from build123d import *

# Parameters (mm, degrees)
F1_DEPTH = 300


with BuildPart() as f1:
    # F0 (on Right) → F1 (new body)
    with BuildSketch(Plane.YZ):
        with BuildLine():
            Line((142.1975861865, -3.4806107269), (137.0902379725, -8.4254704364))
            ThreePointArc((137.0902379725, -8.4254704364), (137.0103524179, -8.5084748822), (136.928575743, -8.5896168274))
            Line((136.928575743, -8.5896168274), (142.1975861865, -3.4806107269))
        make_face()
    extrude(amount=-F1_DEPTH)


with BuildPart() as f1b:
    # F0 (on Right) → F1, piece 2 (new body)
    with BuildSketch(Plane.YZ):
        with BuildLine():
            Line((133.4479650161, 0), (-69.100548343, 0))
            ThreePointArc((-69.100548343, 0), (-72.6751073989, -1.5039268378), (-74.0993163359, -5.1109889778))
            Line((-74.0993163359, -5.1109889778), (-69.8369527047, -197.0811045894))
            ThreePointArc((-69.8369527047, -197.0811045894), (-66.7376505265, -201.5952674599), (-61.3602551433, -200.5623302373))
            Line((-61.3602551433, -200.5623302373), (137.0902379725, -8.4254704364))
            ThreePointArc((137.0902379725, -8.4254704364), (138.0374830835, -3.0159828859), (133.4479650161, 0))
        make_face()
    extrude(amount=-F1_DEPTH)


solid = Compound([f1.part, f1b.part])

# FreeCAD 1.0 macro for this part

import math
import FreeCAD as App
import Part
import Sketcher

V = App.Vector

doc = App.newDocument("Part")
params = doc.addObject("Spreadsheet::Sheet", "Params")
for row, (alias, value) in enumerate([
    ("sketch1_radius", "5 mm"),
    ("pad1_length", "300 mm"),
    ("sketch2_radius", "5 mm"),
    ("pad2_length", "300 mm"),
], start=1):
    params.set(f"A{row}", alias)
    params.set(f"B{row}", "=" + value)
    params.setAlias(f"B{row}", alias)

body = doc.addObject("PartDesign::Body", "Body")

# Sketch on YZ plane
sketch1 = doc.addObject("Sketcher::SketchObject", "Sketch")
body.addObject(sketch1)
sketch1.AttachmentSupport = (doc.YZ_Plane, [""])
sketch1.MapMode = "FlatFace"
sketch1.addGeometry(Part.LineSegment(V(142.2, -3.48, 0), V(137.09, -8.43, 0)), False)
sketch1.addGeometry(Part.ArcOfCircle(Part.Circle(V(133.45, -5, 0), V(0, 0, 1), 5), math.radians(-45.88), math.radians(-43.24)), False)
sketch1.addGeometry(Part.LineSegment(V(136.93, -8.59, 0), V(142.2, -3.48, 0)), False)
sketch1.addConstraint(Sketcher.Constraint("Coincident", 0, 2, 1, 2))
sketch1.addConstraint(Sketcher.Constraint("Tangent", 1, 1, 2, 1))
sketch1.addConstraint(Sketcher.Constraint("Coincident", 2, 2, 0, 1))
sketch1.addConstraint(Sketcher.Constraint("Radius", 1, 5.0))
sketch1.addConstraint(Sketcher.Constraint("DistanceY", 1, 3, -1, 1, 5.0))
sketch1.addConstraint(Sketcher.Constraint("DistanceY", 0, 2, -1, 1, 8.42547))
sketch1.addConstraint(Sketcher.Constraint("DistanceY", 2, 2, -1, 1, 3.480611))
sketch1.addConstraint(Sketcher.Constraint("DistanceX", 1, 3, 1, 1, 3.480611))
sketch1.addConstraint(Sketcher.Constraint("DistanceX", -1, 1, 1, 3, 133.447965))
sketch1.setExpression("Constraints[3]", "Params.sketch1_radius")
pad1 = doc.addObject("PartDesign::Pad", "Pad")
body.addObject(pad1)
pad1.Profile = sketch1
pad1.setExpression("Length", "Params.pad1_length")
pad1.Reversed = True
body2 = doc.addObject("PartDesign::Body", "Body001")

# Sketch on YZ plane
sketch2 = doc.addObject("Sketcher::SketchObject", "Sketch001")
body2.addObject(sketch2)
sketch2.AttachmentSupport = (doc.getObject("YZ_Plane001"), [""])
sketch2.MapMode = "FlatFace"
sketch2.addGeometry(Part.LineSegment(V(133, 0, 0), V(-69, 0, 0)), False)
sketch2.addGeometry(Part.ArcOfCircle(Part.Circle(V(-69, -5, 0), V(0, 0, 1), 5), math.radians(90), math.radians(181)), False)
sketch2.addGeometry(Part.LineSegment(V(-74, -5, 0), V(-70, -197, 0)), False)
sketch2.addGeometry(Part.ArcOfCircle(Part.Circle(V(-65, -197, 0), V(0, 0, 1), 5), math.radians(-179), math.radians(-46)), False)
sketch2.addGeometry(Part.LineSegment(V(-61, -201, 0), V(137, -8, 0)), False)
sketch2.addGeometry(Part.ArcOfCircle(Part.Circle(V(133, -5, 0), V(0, 0, 1), 5), math.radians(-43), math.radians(90)), False)
sketch2.addConstraint(Sketcher.Constraint("Tangent", 0, 2, 1, 1))
sketch2.addConstraint(Sketcher.Constraint("Tangent", 1, 2, 2, 1))
sketch2.addConstraint(Sketcher.Constraint("Tangent", 2, 2, 3, 1))
sketch2.addConstraint(Sketcher.Constraint("Tangent", 3, 2, 4, 1))
sketch2.addConstraint(Sketcher.Constraint("Coincident", 4, 2, 5, 1))
sketch2.addConstraint(Sketcher.Constraint("Tangent", 5, 2, 0, 1))
sketch2.addConstraint(Sketcher.Constraint("Horizontal", 0))
sketch2.addConstraint(Sketcher.Constraint("Equal", 1, 3))
sketch2.addConstraint(Sketcher.Constraint("Equal", 3, 5))
sketch2.addConstraint(Sketcher.Constraint("PointOnObject", 0, 2, -1))
sketch2.addConstraint(Sketcher.Constraint("Radius", 1, 5.0))
sketch2.addConstraint(Sketcher.Constraint("Distance", 2, 192.017429))
sketch2.addConstraint(Sketcher.Constraint("DistanceX", 0, 2, 0, 1, 202.548513))
sketch2.addConstraint(Sketcher.Constraint("DistanceX", 1, 3, -1, 1, 69.100548))
sketch2.addConstraint(Sketcher.Constraint("DistanceY", 1, 2, -1, 1, 5.110989))
sketch2.addConstraint(Sketcher.Constraint("DistanceY", 4, 2, -1, 1, 8.42547))
sketch2.setExpression("Constraints[10]", "Params.sketch2_radius")
pad2 = doc.addObject("PartDesign::Pad", "Pad001")
body2.addObject(pad2)
pad2.Profile = sketch2
pad2.setExpression("Length", "Params.pad2_length")
pad2.Reversed = True

doc.recompute()
